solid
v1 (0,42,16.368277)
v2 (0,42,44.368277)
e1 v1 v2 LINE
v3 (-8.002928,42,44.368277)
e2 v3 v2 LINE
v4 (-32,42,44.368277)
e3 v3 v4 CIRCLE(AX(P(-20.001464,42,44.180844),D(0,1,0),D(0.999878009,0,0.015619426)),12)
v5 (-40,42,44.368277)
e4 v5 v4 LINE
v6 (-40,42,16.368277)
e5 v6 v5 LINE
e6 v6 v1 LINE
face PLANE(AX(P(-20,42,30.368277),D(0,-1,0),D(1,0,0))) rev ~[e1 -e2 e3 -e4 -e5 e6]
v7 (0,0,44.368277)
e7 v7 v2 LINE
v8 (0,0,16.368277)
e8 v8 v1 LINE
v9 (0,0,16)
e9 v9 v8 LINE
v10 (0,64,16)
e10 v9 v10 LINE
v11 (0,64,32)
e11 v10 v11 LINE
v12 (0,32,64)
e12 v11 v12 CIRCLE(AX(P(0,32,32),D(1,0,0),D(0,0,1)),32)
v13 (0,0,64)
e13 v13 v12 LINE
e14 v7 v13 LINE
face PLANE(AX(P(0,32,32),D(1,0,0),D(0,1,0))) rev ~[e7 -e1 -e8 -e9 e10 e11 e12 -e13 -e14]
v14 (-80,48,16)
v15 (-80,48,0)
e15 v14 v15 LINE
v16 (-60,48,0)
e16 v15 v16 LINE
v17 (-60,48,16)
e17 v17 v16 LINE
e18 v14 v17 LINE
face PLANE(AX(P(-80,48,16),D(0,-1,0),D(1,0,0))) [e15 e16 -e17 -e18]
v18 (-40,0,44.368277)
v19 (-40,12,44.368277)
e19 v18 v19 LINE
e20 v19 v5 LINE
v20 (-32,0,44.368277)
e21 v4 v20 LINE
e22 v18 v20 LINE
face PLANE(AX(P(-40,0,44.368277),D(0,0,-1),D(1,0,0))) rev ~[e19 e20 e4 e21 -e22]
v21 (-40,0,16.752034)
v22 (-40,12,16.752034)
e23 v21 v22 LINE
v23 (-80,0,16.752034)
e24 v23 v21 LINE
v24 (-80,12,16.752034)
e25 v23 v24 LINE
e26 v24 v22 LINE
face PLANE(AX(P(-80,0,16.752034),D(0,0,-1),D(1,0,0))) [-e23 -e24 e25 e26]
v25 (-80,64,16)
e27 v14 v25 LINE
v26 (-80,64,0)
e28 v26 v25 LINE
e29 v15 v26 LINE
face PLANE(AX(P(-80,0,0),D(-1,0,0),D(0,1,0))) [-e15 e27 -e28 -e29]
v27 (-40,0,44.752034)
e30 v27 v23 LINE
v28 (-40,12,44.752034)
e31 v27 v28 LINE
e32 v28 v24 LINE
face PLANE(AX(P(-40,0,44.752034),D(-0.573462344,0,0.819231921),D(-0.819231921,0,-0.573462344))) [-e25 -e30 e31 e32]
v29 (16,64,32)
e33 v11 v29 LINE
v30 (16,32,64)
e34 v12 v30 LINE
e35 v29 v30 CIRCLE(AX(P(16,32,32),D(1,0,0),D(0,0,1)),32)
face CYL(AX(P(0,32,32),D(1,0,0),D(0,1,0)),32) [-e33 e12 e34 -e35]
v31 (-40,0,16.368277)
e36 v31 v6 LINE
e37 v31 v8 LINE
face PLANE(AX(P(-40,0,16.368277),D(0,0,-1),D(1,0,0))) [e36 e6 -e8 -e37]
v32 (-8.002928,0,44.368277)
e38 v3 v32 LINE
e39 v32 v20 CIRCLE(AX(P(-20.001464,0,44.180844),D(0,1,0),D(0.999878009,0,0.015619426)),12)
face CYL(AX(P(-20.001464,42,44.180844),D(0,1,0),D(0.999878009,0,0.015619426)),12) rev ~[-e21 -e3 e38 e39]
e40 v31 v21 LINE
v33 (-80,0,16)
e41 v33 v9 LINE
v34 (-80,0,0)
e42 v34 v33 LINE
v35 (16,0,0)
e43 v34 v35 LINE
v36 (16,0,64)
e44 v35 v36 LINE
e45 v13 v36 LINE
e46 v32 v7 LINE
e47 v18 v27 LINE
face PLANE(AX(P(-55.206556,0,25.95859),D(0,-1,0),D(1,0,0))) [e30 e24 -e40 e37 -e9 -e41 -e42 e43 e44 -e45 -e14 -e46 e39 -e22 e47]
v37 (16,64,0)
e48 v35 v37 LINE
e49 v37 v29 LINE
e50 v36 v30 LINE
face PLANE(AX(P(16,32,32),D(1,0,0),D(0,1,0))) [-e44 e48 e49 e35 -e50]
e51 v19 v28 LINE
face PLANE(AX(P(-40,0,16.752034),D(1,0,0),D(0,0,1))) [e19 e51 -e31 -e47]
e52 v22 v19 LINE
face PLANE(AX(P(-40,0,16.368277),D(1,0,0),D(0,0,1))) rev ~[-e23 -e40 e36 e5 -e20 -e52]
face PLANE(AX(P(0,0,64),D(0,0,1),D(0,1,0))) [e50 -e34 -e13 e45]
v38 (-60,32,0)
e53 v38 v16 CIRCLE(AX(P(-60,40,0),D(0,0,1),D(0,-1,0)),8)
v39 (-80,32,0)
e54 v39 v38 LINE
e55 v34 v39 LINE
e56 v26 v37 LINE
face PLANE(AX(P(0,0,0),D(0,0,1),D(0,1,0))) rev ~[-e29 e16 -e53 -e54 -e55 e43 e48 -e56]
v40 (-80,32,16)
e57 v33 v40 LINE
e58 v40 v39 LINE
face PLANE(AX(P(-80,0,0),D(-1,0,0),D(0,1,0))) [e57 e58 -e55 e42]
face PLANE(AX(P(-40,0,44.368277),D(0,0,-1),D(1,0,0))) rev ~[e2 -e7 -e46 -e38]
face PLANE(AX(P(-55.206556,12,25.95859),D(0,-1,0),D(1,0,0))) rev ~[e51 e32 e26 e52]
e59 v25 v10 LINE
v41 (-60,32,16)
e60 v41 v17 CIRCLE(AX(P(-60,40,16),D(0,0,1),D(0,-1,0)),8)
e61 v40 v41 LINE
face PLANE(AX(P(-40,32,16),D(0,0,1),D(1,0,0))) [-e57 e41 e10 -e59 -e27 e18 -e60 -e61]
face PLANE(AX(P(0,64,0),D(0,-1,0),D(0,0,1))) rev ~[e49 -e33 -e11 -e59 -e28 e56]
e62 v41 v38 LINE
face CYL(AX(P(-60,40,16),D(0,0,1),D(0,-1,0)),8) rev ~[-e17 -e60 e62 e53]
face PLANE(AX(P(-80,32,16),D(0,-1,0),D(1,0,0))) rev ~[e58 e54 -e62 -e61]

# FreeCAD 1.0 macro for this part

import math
import FreeCAD as App
import Part
import Sketcher
from FreeCAD import Vector


def edges_at(feature, points):
    """Names of the edges that pass closest to the given points."""
    edges = feature.Shape.Edges
    near = lambda p: min(range(len(edges)), key=lambda i: edges[i].distToShape(Part.Vertex(*p))[0])
    return sorted({f"Edge{near(p) + 1}" for p in points})


def add_polygon(sketch, points):
    """Adds a closed chain of lines whose ends are joined by coincident constraints."""
    first, n = sketch.GeometryCount, len(points)
    for a, b in zip(points, points[1:] + points[:1]):
        sketch.addGeometry(Part.LineSegment(App.Vector(*a, 0), App.Vector(*b, 0)), False)
    for i in range(n):
        sketch.addConstraint(Sketcher.Constraint("Coincident", first + i, 2, first + (i + 1) % n, 1))

doc = App.newDocument("Part")
body = doc.addObject("PartDesign::Body", "Body")

sketch1 = body.newObject("Sketcher::SketchObject", "Sketch")
sketch1.AttachmentSupport = (doc.getObject("XY_Plane"), [""])
sketch1.MapMode = "FlatFace"
add_polygon(sketch1, [(-80, 64), (-80, 0), (0, 0), (0, 64)])
sketch1.addConstraint([
    Sketcher.Constraint("Vertical", 0),
    Sketcher.Constraint("Horizontal", 1),
    Sketcher.Constraint("Vertical", 2),
    Sketcher.Constraint("Horizontal", 3),
    Sketcher.Constraint("Coincident", 1, 2, -1, 1),
    Sketcher.Constraint("DistanceX", 1, 1, 1, 2, 80.0),
    Sketcher.Constraint("DistanceY", 0, 2, 0, 1, 64.0),
])
pad1 = body.newObject("PartDesign::Pad", "Pad")
pad1.Profile = sketch1
pad1.Length = 16

sketch2 = body.newObject("Sketcher::SketchObject", "Sketch001")
sketch2.AttachmentSupport = (doc.getObject("YZ_Plane"), [""])
sketch2.MapMode = "FlatFace"
add_polygon(sketch2, [(0, 64), (0, 0), (64, 0), (64, 64)])
sketch2.addConstraint([
    Sketcher.Constraint("Vertical", 0),
    Sketcher.Constraint("Horizontal", 1),
    Sketcher.Constraint("Vertical", 2),
    Sketcher.Constraint("Horizontal", 3),
    Sketcher.Constraint("Coincident", 0, 2, -1, 1),
    Sketcher.Constraint("Equal", 3, 0),
    Sketcher.Constraint("DistanceX", 1, 1, 1, 2, 64.0),
])
pad2 = body.newObject("PartDesign::Pad", "Pad001")
pad2.Profile = sketch2
pad2.Length = 16
doc.recompute()

fillet = body.newObject("PartDesign::Fillet", "Fillet")
fillet.Base = (pad2, edges_at(pad2, [(8, 64, 64)]))
fillet.Radius = 32

sketch3 = body.newObject("Sketcher::SketchObject", "Sketch002")
sketch3.AttachmentSupport = (doc.getObject("XZ_Plane"), [""])
sketch3.MapMode = "FlatFace"
add_polygon(sketch3, [(-40, 44), (-40, 16), (0, 16), (0, 44)])
sketch3.addConstraint([
    Sketcher.Constraint("Vertical", 0),
    Sketcher.Constraint("Horizontal", 1),
    Sketcher.Constraint("Vertical", 2),
    Sketcher.Constraint("Horizontal", 3),
    Sketcher.Constraint("PointOnObject", 1, 2, -2),
    Sketcher.Constraint("DistanceX", 1, 1, 1, 2, 40.0),
    Sketcher.Constraint("DistanceY", 0, 2, 0, 1, 28.0),
    Sketcher.Constraint("DistanceY", -1, 1, 0, 2, 16.368277),
])
pad3 = body.newObject("PartDesign::Pad", "Pad002")
pad3.Profile = sketch3
pad3.Length = 42
pad3.Reversed = True

sketch4 = body.newObject("Sketcher::SketchObject", "Sketch003")
sketch4.AttachmentSupport = (doc.getObject("XZ_Plane"), [""])
sketch4.MapMode = "FlatFace"
sketch4.AttachmentOffset = App.Placement(Vector(0, 0, -42), App.Rotation())
sketch4.addGeometry([
    Part.LineSegment(Vector(-32, 44, 0), Vector(-8, 44, 0)),
    Part.ArcOfCircle(Part.Circle(Vector(-20, 44, 0), Vector(0, 0, 1), 12), math.radians(179), math.radians(361)),
], False)
sketch4.addConstraint([
    Sketcher.Constraint("Coincident", 0, 1, 1, 1),
    Sketcher.Constraint("Coincident", 1, 2, 0, 2),
    Sketcher.Constraint("Horizontal", 0),
    Sketcher.Constraint("Radius", 1, 12.0),
    Sketcher.Constraint("DistanceX", 0, 1, -1, 1, 32.0),
    Sketcher.Constraint("DistanceX", 0, 1, 0, 2, 23.997072),
    Sketcher.Constraint("DistanceY", -1, 1, 1, 3, 44.180844),
])
pocket1 = body.newObject("PartDesign::Pocket", "Pocket")
pocket1.Profile = sketch4
pocket1.Length = 42
pocket1.Reversed = True

sketch5 = body.newObject("Sketcher::SketchObject", "Sketch004")
sketch5.AttachmentSupport = (doc.getObject("XZ_Plane"), [""])
sketch5.MapMode = "FlatFace"
add_polygon(sketch5, [(-40, 17), (-40, 45), (-80, 17)])
sketch5.addConstraint([
    Sketcher.Constraint("Vertical", 0),
    Sketcher.Constraint("Horizontal", 2),
    Sketcher.Constraint("DistanceX", 2, 1, 2, 2, 40.0),
    Sketcher.Constraint("DistanceY", 0, 1, 0, 2, 28.0),
    Sketcher.Constraint("DistanceX", 0, 2, -1, 1, 40.0),
    Sketcher.Constraint("DistanceY", -1, 1, 0, 2, 44.752034),
])
pad4 = body.newObject("PartDesign::Pad", "Pad003")
pad4.Profile = sketch5
pad4.Length = 12
pad4.Reversed = True

sketch6 = body.newObject("Sketcher::SketchObject", "Sketch005")
sketch6.AttachmentSupport = (doc.getObject("XY_Plane"), [""])
sketch6.MapMode = "FlatFace"
sketch6.AttachmentOffset = App.Placement(Vector(0, 0, 16), App.Rotation())
sketch6.addGeometry([
    Part.LineSegment(Vector(-80, 48, 0), Vector(-80, 32, 0)),
    Part.LineSegment(Vector(-80, 32, 0), Vector(-60, 32, 0)),
    Part.ArcOfCircle(Part.Circle(Vector(-60, 40, 0), Vector(0, 0, 1), 8), math.radians(-90), math.radians(90)),
    Part.LineSegment(Vector(-60, 48, 0), Vector(-80, 48, 0)),
], False)
sketch6.addConstraint([
    Sketcher.Constraint("Coincident", 0, 2, 1, 1),
    Sketcher.Constraint("Tangent", 1, 2, 2, 1),
    Sketcher.Constraint("Tangent", 2, 2, 3, 1),
    Sketcher.Constraint("Coincident", 3, 2, 0, 1),
    Sketcher.Constraint("Vertical", 0),
    Sketcher.Constraint("Horizontal", 1),
    Sketcher.Constraint("Horizontal", 3),
    Sketcher.Constraint("Radius", 2, 8.0),
    Sketcher.Constraint("DistanceX", 1, 1, 1, 2, 20.0),
    Sketcher.Constraint("DistanceX", 2, 3, -1, 1, 60.0),
    Sketcher.Constraint("DistanceY", -1, 1, 2, 3, 40.0),
])
pocket2 = body.newObject("PartDesign::Pocket", "Pocket001")
pocket2.Profile = sketch6
pocket2.Length = 16

doc.recompute()
